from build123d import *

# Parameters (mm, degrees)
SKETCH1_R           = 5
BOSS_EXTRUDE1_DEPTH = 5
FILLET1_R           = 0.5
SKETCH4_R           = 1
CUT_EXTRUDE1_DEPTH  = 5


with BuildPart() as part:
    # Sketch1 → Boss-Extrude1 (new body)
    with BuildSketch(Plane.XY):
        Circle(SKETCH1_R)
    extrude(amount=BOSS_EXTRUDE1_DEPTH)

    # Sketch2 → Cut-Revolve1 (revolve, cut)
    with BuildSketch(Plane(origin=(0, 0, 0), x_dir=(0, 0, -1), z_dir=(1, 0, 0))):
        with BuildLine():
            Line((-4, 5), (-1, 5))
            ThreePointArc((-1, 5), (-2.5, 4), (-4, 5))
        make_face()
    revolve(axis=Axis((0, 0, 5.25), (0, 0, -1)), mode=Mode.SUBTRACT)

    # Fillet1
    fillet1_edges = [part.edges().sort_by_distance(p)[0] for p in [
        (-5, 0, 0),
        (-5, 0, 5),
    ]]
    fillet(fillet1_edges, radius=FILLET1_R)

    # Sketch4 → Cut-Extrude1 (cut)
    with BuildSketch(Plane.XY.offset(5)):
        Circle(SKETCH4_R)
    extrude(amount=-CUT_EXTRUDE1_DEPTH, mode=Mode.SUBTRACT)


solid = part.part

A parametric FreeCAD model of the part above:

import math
import FreeCAD as App
import Part
import Sketcher
Q = App.Units.Quantity


def edges_at(feature, points):
    """Names of the edges that pass closest to the given points."""
    edges = feature.Shape.Edges
    near = lambda p: min(range(len(edges)), key=lambda i: edges[i].distToShape(Part.Vertex(*p))[0])
    return sorted({f"Edge{near(p) + 1}" for p in points})

doc = App.newDocument("Part")
body = doc.addObject("PartDesign::Body", "Body")

# Sketch on XY plane
sketch1 = body.newObject("Sketcher::SketchObject", "Sketch")
sketch1.AttachmentSupport = (doc.getObject("XY_Plane"), [""])
sketch1.MapMode = "FlatFace"
sketch1.addGeometry(Part.Circle(App.Vector(0, 0, 0), App.Vector(0, 0, 1), 5), False)
sketch1.addConstraint([
    Sketcher.Constraint("Coincident", 0, 3, -1, 1),
    Sketcher.Constraint("Diameter", 0, Q("10 mm")),
])
pad1 = body.newObject("PartDesign::Pad", "Pad")
pad1.Profile = sketch1
pad1.Length = 5

# Sketch on YZ plane
sketch2 = body.newObject("Sketcher::SketchObject", "Sketch001")
sketch2.AttachmentSupport = (doc.getObject("YZ_Plane"), [""])
sketch2.MapMode = "FlatFace"
sketch2.addGeometry([
    Part.LineSegment(App.Vector(5, 1, 0), App.Vector(5, 4, 0)),
    Part.ArcOfCircle(Part.Circle(App.Vector(5.6, 2.5, 0), App.Vector(0, 0, 1), 1.6), math.radians(113), math.radians(247)),
], False)
sketch2.addConstraint([
    Sketcher.Constraint("Coincident", 0, 1, 1, 2),
    Sketcher.Constraint("Coincident", 1, 1, 0, 2),
    Sketcher.Constraint("Vertical", 0),
    Sketcher.Constraint("DistanceY", 0, 1, 0, 2, Q("3 mm")),
    Sketcher.Constraint("DistanceX", -1, 1, 0, 1, Q("5 mm")),
    Sketcher.Constraint("DistanceY", -1, 1, 0, 1, Q("1 mm")),
    Sketcher.Constraint("Radius", 1, Q("1.625 mm")),
])
groove = body.newObject("PartDesign::Groove", "Groove")
groove.Profile = sketch2
groove.ReferenceAxis = (sketch2, ["V_Axis"])
groove.Angle = 360
doc.recompute()

fillet = body.newObject("PartDesign::Fillet", "Fillet")
fillet.Base = (groove, edges_at(groove, [(-5, 0, 0), (-5, 0, 5)]))
fillet.Radius = 0.5

# Sketch on XY plane
sketch3 = body.newObject("Sketcher::SketchObject", "Sketch002")
sketch3.AttachmentSupport = (doc.getObject("XY_Plane"), [""])
sketch3.MapMode = "FlatFace"
sketch3.AttachmentOffset = App.Placement(App.Vector(0, 0, 5), App.Rotation())
sketch3.addGeometry(Part.Circle(App.Vector(0, 0, 0), App.Vector(0, 0, 1), 1), False)
sketch3.addConstraint([
    Sketcher.Constraint("Coincident", 0, 3, -1, 1),
    Sketcher.Constraint("Diameter", 0, Q("2 mm")),
])
pocket1 = body.newObject("PartDesign::Pocket", "Pocket")
pocket1.Profile = sketch3
pocket1.Length = 5

doc.recompute()
